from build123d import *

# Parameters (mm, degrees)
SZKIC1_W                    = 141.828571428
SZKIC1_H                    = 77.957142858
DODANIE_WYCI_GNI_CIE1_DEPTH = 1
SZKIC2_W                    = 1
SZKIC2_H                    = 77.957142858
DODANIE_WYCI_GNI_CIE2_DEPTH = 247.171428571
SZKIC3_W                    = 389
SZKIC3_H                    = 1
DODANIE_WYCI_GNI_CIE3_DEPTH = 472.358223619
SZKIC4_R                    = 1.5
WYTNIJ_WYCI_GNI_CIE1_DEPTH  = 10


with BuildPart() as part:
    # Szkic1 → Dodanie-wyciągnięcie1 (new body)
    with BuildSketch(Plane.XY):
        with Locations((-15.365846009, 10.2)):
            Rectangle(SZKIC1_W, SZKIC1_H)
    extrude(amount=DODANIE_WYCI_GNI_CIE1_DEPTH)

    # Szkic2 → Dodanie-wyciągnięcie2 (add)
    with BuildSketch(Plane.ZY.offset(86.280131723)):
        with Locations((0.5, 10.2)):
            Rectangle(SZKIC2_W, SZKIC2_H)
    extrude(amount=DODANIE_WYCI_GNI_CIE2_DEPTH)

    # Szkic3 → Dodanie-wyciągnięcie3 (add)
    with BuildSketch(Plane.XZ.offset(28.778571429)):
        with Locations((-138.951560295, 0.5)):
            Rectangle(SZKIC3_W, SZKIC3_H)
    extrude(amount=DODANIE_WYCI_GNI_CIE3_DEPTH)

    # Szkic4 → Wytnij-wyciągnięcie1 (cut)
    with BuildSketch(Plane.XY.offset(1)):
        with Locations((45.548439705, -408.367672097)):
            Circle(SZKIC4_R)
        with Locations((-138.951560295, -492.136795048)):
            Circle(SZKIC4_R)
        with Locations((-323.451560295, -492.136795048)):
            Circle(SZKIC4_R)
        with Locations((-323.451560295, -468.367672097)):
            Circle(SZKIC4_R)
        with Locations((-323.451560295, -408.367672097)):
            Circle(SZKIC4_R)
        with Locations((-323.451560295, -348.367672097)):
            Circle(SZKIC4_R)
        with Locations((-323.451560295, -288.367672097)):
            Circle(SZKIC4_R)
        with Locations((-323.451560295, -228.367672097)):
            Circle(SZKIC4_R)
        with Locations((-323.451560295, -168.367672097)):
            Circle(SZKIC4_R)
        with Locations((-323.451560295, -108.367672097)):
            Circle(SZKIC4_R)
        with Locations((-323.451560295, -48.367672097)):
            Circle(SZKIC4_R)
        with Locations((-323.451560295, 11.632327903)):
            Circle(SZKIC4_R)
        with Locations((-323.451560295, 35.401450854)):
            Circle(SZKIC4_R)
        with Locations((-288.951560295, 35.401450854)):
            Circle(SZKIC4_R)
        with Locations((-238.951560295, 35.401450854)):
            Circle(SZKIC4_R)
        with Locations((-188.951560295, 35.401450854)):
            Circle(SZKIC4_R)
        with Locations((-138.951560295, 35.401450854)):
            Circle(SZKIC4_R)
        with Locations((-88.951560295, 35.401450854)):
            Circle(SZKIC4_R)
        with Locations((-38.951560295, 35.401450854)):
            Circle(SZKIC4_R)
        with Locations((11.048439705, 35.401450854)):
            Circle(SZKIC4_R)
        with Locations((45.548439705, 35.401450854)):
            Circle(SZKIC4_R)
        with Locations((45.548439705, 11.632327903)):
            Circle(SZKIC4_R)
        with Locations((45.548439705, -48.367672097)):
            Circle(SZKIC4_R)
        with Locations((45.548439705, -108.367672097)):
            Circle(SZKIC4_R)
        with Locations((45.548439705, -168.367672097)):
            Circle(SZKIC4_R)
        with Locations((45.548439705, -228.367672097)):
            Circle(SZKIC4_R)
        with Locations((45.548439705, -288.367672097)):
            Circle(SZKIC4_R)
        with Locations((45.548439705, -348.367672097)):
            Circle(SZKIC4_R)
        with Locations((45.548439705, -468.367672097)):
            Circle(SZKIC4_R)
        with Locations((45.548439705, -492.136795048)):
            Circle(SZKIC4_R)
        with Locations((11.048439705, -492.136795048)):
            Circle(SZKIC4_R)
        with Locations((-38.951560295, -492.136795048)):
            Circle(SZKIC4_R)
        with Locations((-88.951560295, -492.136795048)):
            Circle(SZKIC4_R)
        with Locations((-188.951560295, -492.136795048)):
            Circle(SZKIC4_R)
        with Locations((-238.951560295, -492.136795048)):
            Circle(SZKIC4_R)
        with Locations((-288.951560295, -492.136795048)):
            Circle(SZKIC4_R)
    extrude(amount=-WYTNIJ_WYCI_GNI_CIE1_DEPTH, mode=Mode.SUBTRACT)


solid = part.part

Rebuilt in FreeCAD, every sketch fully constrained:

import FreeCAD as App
import Part
import Sketcher

V = App.Vector

doc = App.newDocument("Part")
body = doc.addObject("PartDesign::Body", "Body")

# Sketch on XY plane
sketch1 = body.newObject("Sketcher::SketchObject", "Sketch")
sketch1.AttachmentSupport = (doc.getObject("XY_Plane"), [""])
sketch1.MapMode = "FlatFace"
sketch1.addGeometry([
    Part.LineSegment(V(-86, 49, 0), V(-86, -29, 0)),
    Part.LineSegment(V(-86, -29, 0), V(56, -29, 0)),
    Part.LineSegment(V(56, -29, 0), V(56, 49, 0)),
    Part.LineSegment(V(56, 49, 0), V(-86, 49, 0)),
], False)
sketch1.addConstraint([
    Sketcher.Constraint("Coincident", 0, 2, 1, 1),
    Sketcher.Constraint("Coincident", 1, 2, 2, 1),
    Sketcher.Constraint("Coincident", 2, 2, 3, 1),
    Sketcher.Constraint("Coincident", 3, 2, 0, 1),
    Sketcher.Constraint("Vertical", 0),
    Sketcher.Constraint("Horizontal", 1),
    Sketcher.Constraint("Vertical", 2),
    Sketcher.Constraint("Horizontal", 3),
    Sketcher.Constraint("DistanceX", 1, 1, 1, 2, 141.828571),
    Sketcher.Constraint("DistanceY", 0, 2, 0, 1, 77.957143),
    Sketcher.Constraint("DistanceX", 0, 2, -1, 1, 86.280132),
    Sketcher.Constraint("DistanceY", 0, 2, -1, 1, 28.778571),
])
pad1 = body.newObject("PartDesign::Pad", "Pad")
pad1.Profile = sketch1
pad1.Length = 1

# Sketch on YZ plane
sketch2 = body.newObject("Sketcher::SketchObject", "Sketch001")
sketch2.AttachmentSupport = (doc.getObject("YZ_Plane"), [""])
sketch2.MapMode = "FlatFace"
sketch2.AttachmentOffset = App.Placement(V(0, 0, -86.280132), App.Rotation())
sketch2.addGeometry([
    Part.LineSegment(V(49.2, 0, 0), V(-28.8, 0, 0)),
    Part.LineSegment(V(-28.8, 0, 0), V(-28.8, 1, 0)),
    Part.LineSegment(V(-28.8, 1, 0), V(49.2, 1, 0)),
    Part.LineSegment(V(49.2, 1, 0), V(49.2, 0, 0)),
], False)
sketch2.addConstraint([
    Sketcher.Constraint("Coincident", 0, 2, 1, 1),
    Sketcher.Constraint("Coincident", 1, 2, 2, 1),
    Sketcher.Constraint("Coincident", 2, 2, 3, 1),
    Sketcher.Constraint("Coincident", 3, 2, 0, 1),
    Sketcher.Constraint("Horizontal", 0),
    Sketcher.Constraint("Vertical", 1),
    Sketcher.Constraint("Horizontal", 2),
    Sketcher.Constraint("Vertical", 3),
    Sketcher.Constraint("PointOnObject", 0, 2, -1),
    Sketcher.Constraint("DistanceY", 1, 1, 1, 2, 1.0),
    Sketcher.Constraint("DistanceX", 0, 2, 0, 1, 77.957143),
    Sketcher.Constraint("DistanceX", 0, 2, -1, 1, 28.778571),
])
pad2 = body.newObject("PartDesign::Pad", "Pad001")
pad2.Profile = sketch2
pad2.Length = 247.171429
pad2.Reversed = True

# Sketch on XZ plane
sketch3 = body.newObject("Sketcher::SketchObject", "Sketch002")
sketch3.AttachmentSupport = (doc.getObject("XZ_Plane"), [""])
sketch3.MapMode = "FlatFace"
sketch3.AttachmentOffset = App.Placement(V(0, 0, 28.778571), App.Rotation())
sketch3.addGeometry([
    Part.LineSegment(V(-333.5, 1, 0), V(-333.5, 0, 0)),
    Part.LineSegment(V(-333.5, 0, 0), V(55.5, 0, 0)),
    Part.LineSegment(V(55.5, 0, 0), V(55.5, 1, 0)),
    Part.LineSegment(V(55.5, 1, 0), V(-333.5, 1, 0)),
], False)
sketch3.addConstraint([
    Sketcher.Constraint("Coincident", 0, 2, 1, 1),
    Sketcher.Constraint("Coincident", 1, 2, 2, 1),
    Sketcher.Constraint("Coincident", 2, 2, 3, 1),
    Sketcher.Constraint("Coincident", 3, 2, 0, 1),
    Sketcher.Constraint("Vertical", 0),
    Sketcher.Constraint("Horizontal", 1),
    Sketcher.Constraint("Vertical", 2),
    Sketcher.Constraint("Horizontal", 3),
    Sketcher.Constraint("PointOnObject", 0, 2, -1),
    Sketcher.Constraint("DistanceX", 1, 1, 1, 2, 389.0),
    Sketcher.Constraint("DistanceY", 0, 2, 0, 1, 1.0),
    Sketcher.Constraint("DistanceX", 0, 2, -1, 1, 333.45156),
])
pad3 = body.newObject("PartDesign::Pad", "Pad002")
pad3.Profile = sketch3
pad3.Length = 472.358224

# Sketch on XY plane
sketch4 = body.newObject("Sketcher::SketchObject", "Sketch003")
sketch4.AttachmentSupport = (doc.getObject("XY_Plane"), [""])
sketch4.MapMode = "FlatFace"
sketch4.AttachmentOffset = App.Placement(V(0, 0, 1), App.Rotation())
sketch4.addGeometry([
    Part.Circle(V(45.5, -408.4, 0), V(0, 0, 1), 1.5),  # 0
    Part.Circle(V(-139, -492.1, 0), V(0, 0, 1), 1.5),  # 1
    Part.Circle(V(-323.5, -492.1, 0), V(0, 0, 1), 1.5),  # 2
    Part.Circle(V(-323.5, -468.4, 0), V(0, 0, 1), 1.5),  # 3
    Part.Circle(V(-323.5, -408.4, 0), V(0, 0, 1), 1.5),  # 4
    Part.Circle(V(-323.5, -348.4, 0), V(0, 0, 1), 1.5),  # 5
    Part.Circle(V(-323.5, -288.4, 0), V(0, 0, 1), 1.5),  # 6
    Part.Circle(V(-323.5, -228.4, 0), V(0, 0, 1), 1.5),  # 7
    Part.Circle(V(-323.5, -168.4, 0), V(0, 0, 1), 1.5),  # 8
    Part.Circle(V(-323.5, -108.4, 0), V(0, 0, 1), 1.5),  # 9
    Part.Circle(V(-323.5, -48.4, 0), V(0, 0, 1), 1.5),  # 10
    Part.Circle(V(-323.5, 11.6, 0), V(0, 0, 1), 1.5),  # 11
    Part.Circle(V(-323.5, 35.4, 0), V(0, 0, 1), 1.5),  # 12
    Part.Circle(V(-289, 35.4, 0), V(0, 0, 1), 1.5),  # 13
    Part.Circle(V(-239, 35.4, 0), V(0, 0, 1), 1.5),  # 14
    Part.Circle(V(-189, 35.4, 0), V(0, 0, 1), 1.5),  # 15
    Part.Circle(V(-139, 35.4, 0), V(0, 0, 1), 1.5),  # 16
    Part.Circle(V(-89, 35.4, 0), V(0, 0, 1), 1.5),  # 17
    Part.Circle(V(-39, 35.4, 0), V(0, 0, 1), 1.5),  # 18
    Part.Circle(V(11, 35.4, 0), V(0, 0, 1), 1.5),  # 19
    Part.Circle(V(45.5, 35.4, 0), V(0, 0, 1), 1.5),  # 20
    Part.Circle(V(45.5, 11.6, 0), V(0, 0, 1), 1.5),  # 21
    Part.Circle(V(45.5, -48.4, 0), V(0, 0, 1), 1.5),  # 22
    Part.Circle(V(45.5, -108.4, 0), V(0, 0, 1), 1.5),  # 23
    Part.Circle(V(45.5, -168.4, 0), V(0, 0, 1), 1.5),  # 24
    Part.Circle(V(45.5, -228.4, 0), V(0, 0, 1), 1.5),  # 25
    Part.Circle(V(45.5, -288.4, 0), V(0, 0, 1), 1.5),  # 26
    Part.Circle(V(45.5, -348.4, 0), V(0, 0, 1), 1.5),  # 27
    Part.Circle(V(45.5, -468.4, 0), V(0, 0, 1), 1.5),  # 28
    Part.Circle(V(45.5, -492.1, 0), V(0, 0, 1), 1.5),  # 29
    Part.Circle(V(11, -492.1, 0), V(0, 0, 1), 1.5),  # 30
    Part.Circle(V(-39, -492.1, 0), V(0, 0, 1), 1.5),  # 31
    Part.Circle(V(-89, -492.1, 0), V(0, 0, 1), 1.5),  # 32
    Part.Circle(V(-189, -492.1, 0), V(0, 0, 1), 1.5),  # 33
    Part.Circle(V(-239, -492.1, 0), V(0, 0, 1), 1.5),  # 34
    Part.Circle(V(-289, -492.1, 0), V(0, 0, 1), 1.5),  # 35
], False)
sketch4.addConstraint([
    Sketcher.Constraint("Equal", 0, 1),
    Sketcher.Constraint("Equal", 1, 2),
    Sketcher.Constraint("Equal", 2, 3),
    Sketcher.Constraint("Equal", 3, 4),
    Sketcher.Constraint("Equal", 4, 5),
    Sketcher.Constraint("Equal", 5, 6),
    Sketcher.Constraint("Equal", 6, 7),
    Sketcher.Constraint("Equal", 7, 8),
    Sketcher.Constraint("Equal", 8, 9),
    Sketcher.Constraint("Equal", 9, 10),
    Sketcher.Constraint("Equal", 10, 11),
    Sketcher.Constraint("Equal", 11, 12),
    Sketcher.Constraint("Equal", 12, 13),
    Sketcher.Constraint("Equal", 13, 14),
    Sketcher.Constraint("Equal", 14, 15),
    Sketcher.Constraint("Equal", 15, 16),
    Sketcher.Constraint("Equal", 16, 17),
    Sketcher.Constraint("Equal", 17, 18),
    Sketcher.Constraint("Equal", 18, 19),
    Sketcher.Constraint("Equal", 19, 20),
    Sketcher.Constraint("Equal", 20, 21),
    Sketcher.Constraint("Equal", 21, 22),
    Sketcher.Constraint("Equal", 22, 23),
    Sketcher.Constraint("Equal", 23, 24),
    Sketcher.Constraint("Equal", 24, 25),
    Sketcher.Constraint("Equal", 25, 26),
    Sketcher.Constraint("Equal", 26, 27),
    Sketcher.Constraint("Equal", 27, 28),
    Sketcher.Constraint("Equal", 28, 29),
    Sketcher.Constraint("Equal", 29, 30),
    Sketcher.Constraint("Equal", 30, 31),
    Sketcher.Constraint("Equal", 31, 32),
    Sketcher.Constraint("Equal", 32, 33),
    Sketcher.Constraint("Equal", 33, 34),
    Sketcher.Constraint("Equal", 34, 35),
    Sketcher.Constraint("Horizontal", 1, 3, 2, 3),
    Sketcher.Constraint("Horizontal", 0, 3, 4, 3),
    Sketcher.Constraint("Horizontal", 12, 3, 13, 3),
    Sketcher.Constraint("Horizontal", 13, 3, 14, 3),
    Sketcher.Constraint("Horizontal", 14, 3, 15, 3),
    Sketcher.Constraint("Horizontal", 15, 3, 16, 3),
    Sketcher.Constraint("Horizontal", 16, 3, 17, 3),
    Sketcher.Constraint("Horizontal", 17, 3, 18, 3),
    Sketcher.Constraint("Horizontal", 18, 3, 19, 3),
    Sketcher.Constraint("Horizontal", 19, 3, 20, 3),
    Sketcher.Constraint("Horizontal", 11, 3, 21, 3),
    Sketcher.Constraint("Horizontal", 10, 3, 22, 3),
    Sketcher.Constraint("Horizontal", 9, 3, 23, 3),
    Sketcher.Constraint("Horizontal", 8, 3, 24, 3),
    Sketcher.Constraint("Horizontal", 7, 3, 25, 3),
    Sketcher.Constraint("Horizontal", 6, 3, 26, 3),
    Sketcher.Constraint("Horizontal", 5, 3, 27, 3),
    Sketcher.Constraint("Horizontal", 3, 3, 28, 3),
    Sketcher.Constraint("Horizontal", 2, 3, 29, 3),
    Sketcher.Constraint("Horizontal", 29, 3, 30, 3),
    Sketcher.Constraint("Horizontal", 30, 3, 31, 3),
    Sketcher.Constraint("Horizontal", 31, 3, 32, 3),
    Sketcher.Constraint("Horizontal", 32, 3, 33, 3),
    Sketcher.Constraint("Horizontal", 33, 3, 34, 3),
    Sketcher.Constraint("Horizontal", 34, 3, 35, 3),
    Sketcher.Constraint("Vertical", 2, 3, 3, 3),
    Sketcher.Constraint("Vertical", 3, 3, 4, 3),
    Sketcher.Constraint("Vertical", 4, 3, 5, 3),
    Sketcher.Constraint("Vertical", 5, 3, 6, 3),
    Sketcher.Constraint("Vertical", 6, 3, 7, 3),
    Sketcher.Constraint("Vertical", 7, 3, 8, 3),
    Sketcher.Constraint("Vertical", 8, 3, 9, 3),
    Sketcher.Constraint("Vertical", 9, 3, 10, 3),
    Sketcher.Constraint("Vertical", 10, 3, 11, 3),
    Sketcher.Constraint("Vertical", 11, 3, 12, 3),
    Sketcher.Constraint("Vertical", 1, 3, 16, 3),
    Sketcher.Constraint("Vertical", 0, 3, 20, 3),
    Sketcher.Constraint("Vertical", 20, 3, 21, 3),
    Sketcher.Constraint("Vertical", 21, 3, 22, 3),
    Sketcher.Constraint("Vertical", 22, 3, 23, 3),
    Sketcher.Constraint("Vertical", 23, 3, 24, 3),
    Sketcher.Constraint("Vertical", 24, 3, 25, 3),
    Sketcher.Constraint("Vertical", 25, 3, 26, 3),
    Sketcher.Constraint("Vertical", 26, 3, 27, 3),
    Sketcher.Constraint("Vertical", 27, 3, 28, 3),
    Sketcher.Constraint("Vertical", 28, 3, 29, 3),
    Sketcher.Constraint("Vertical", 19, 3, 30, 3),
    Sketcher.Constraint("Vertical", 18, 3, 31, 3),
    Sketcher.Constraint("Vertical", 17, 3, 32, 3),
    Sketcher.Constraint("Vertical", 15, 3, 33, 3),
    Sketcher.Constraint("Vertical", 14, 3, 34, 3),
    Sketcher.Constraint("Vertical", 13, 3, 35, 3),
    Sketcher.Constraint("Diameter", 0, 3.0),
    Sketcher.Constraint("DistanceX", 2, 3, 0, 3, 369.0),
    Sketcher.Constraint("DistanceY", 3, 3, 0, 3, 60.0),
    Sketcher.Constraint("DistanceY", 4, 3, 5, 3, 60.0),
    Sketcher.Constraint("DistanceY", 5, 3, 6, 3, 60.0),
    Sketcher.Constraint("DistanceY", 6, 3, 7, 3, 60.0),
    Sketcher.Constraint("DistanceY", 7, 3, 8, 3, 60.0),
    Sketcher.Constraint("DistanceY", 8, 3, 9, 3, 60.0),
    Sketcher.Constraint("DistanceY", 9, 3, 10, 3, 60.0),
    Sketcher.Constraint("DistanceY", 10, 3, 11, 3, 60.0),
    Sketcher.Constraint("DistanceX", 13, 3, 14, 3, 50.0),
    Sketcher.Constraint("DistanceX", 14, 3, 15, 3, 50.0),
    Sketcher.Constraint("DistanceX", 15, 3, 16, 3, 50.0),
    Sketcher.Constraint("DistanceX", 16, 3, 17, 3, 50.0),
    Sketcher.Constraint("DistanceX", 17, 3, 18, 3, 50.0),
    Sketcher.Constraint("DistanceX", 18, 3, 19, 3, 50.0),
    Sketcher.Constraint("DistanceX", 1, 3, 0, 3, 184.5),
    Sketcher.Constraint("DistanceX", -1, 1, 0, 3, 45.54844),
    Sketcher.Constraint("DistanceY", -1, 1, 12, 3, 35.401451),
    Sketcher.Constraint("DistanceY", 0, 3, -1, 1, 408.367672),
    Sketcher.Constraint("DistanceY", 1, 3, -1, 1, 492.136795),
])
pocket1 = body.newObject("PartDesign::Pocket", "Pocket")
pocket1.Profile = sketch4
pocket1.Length = 10

doc.recompute()
